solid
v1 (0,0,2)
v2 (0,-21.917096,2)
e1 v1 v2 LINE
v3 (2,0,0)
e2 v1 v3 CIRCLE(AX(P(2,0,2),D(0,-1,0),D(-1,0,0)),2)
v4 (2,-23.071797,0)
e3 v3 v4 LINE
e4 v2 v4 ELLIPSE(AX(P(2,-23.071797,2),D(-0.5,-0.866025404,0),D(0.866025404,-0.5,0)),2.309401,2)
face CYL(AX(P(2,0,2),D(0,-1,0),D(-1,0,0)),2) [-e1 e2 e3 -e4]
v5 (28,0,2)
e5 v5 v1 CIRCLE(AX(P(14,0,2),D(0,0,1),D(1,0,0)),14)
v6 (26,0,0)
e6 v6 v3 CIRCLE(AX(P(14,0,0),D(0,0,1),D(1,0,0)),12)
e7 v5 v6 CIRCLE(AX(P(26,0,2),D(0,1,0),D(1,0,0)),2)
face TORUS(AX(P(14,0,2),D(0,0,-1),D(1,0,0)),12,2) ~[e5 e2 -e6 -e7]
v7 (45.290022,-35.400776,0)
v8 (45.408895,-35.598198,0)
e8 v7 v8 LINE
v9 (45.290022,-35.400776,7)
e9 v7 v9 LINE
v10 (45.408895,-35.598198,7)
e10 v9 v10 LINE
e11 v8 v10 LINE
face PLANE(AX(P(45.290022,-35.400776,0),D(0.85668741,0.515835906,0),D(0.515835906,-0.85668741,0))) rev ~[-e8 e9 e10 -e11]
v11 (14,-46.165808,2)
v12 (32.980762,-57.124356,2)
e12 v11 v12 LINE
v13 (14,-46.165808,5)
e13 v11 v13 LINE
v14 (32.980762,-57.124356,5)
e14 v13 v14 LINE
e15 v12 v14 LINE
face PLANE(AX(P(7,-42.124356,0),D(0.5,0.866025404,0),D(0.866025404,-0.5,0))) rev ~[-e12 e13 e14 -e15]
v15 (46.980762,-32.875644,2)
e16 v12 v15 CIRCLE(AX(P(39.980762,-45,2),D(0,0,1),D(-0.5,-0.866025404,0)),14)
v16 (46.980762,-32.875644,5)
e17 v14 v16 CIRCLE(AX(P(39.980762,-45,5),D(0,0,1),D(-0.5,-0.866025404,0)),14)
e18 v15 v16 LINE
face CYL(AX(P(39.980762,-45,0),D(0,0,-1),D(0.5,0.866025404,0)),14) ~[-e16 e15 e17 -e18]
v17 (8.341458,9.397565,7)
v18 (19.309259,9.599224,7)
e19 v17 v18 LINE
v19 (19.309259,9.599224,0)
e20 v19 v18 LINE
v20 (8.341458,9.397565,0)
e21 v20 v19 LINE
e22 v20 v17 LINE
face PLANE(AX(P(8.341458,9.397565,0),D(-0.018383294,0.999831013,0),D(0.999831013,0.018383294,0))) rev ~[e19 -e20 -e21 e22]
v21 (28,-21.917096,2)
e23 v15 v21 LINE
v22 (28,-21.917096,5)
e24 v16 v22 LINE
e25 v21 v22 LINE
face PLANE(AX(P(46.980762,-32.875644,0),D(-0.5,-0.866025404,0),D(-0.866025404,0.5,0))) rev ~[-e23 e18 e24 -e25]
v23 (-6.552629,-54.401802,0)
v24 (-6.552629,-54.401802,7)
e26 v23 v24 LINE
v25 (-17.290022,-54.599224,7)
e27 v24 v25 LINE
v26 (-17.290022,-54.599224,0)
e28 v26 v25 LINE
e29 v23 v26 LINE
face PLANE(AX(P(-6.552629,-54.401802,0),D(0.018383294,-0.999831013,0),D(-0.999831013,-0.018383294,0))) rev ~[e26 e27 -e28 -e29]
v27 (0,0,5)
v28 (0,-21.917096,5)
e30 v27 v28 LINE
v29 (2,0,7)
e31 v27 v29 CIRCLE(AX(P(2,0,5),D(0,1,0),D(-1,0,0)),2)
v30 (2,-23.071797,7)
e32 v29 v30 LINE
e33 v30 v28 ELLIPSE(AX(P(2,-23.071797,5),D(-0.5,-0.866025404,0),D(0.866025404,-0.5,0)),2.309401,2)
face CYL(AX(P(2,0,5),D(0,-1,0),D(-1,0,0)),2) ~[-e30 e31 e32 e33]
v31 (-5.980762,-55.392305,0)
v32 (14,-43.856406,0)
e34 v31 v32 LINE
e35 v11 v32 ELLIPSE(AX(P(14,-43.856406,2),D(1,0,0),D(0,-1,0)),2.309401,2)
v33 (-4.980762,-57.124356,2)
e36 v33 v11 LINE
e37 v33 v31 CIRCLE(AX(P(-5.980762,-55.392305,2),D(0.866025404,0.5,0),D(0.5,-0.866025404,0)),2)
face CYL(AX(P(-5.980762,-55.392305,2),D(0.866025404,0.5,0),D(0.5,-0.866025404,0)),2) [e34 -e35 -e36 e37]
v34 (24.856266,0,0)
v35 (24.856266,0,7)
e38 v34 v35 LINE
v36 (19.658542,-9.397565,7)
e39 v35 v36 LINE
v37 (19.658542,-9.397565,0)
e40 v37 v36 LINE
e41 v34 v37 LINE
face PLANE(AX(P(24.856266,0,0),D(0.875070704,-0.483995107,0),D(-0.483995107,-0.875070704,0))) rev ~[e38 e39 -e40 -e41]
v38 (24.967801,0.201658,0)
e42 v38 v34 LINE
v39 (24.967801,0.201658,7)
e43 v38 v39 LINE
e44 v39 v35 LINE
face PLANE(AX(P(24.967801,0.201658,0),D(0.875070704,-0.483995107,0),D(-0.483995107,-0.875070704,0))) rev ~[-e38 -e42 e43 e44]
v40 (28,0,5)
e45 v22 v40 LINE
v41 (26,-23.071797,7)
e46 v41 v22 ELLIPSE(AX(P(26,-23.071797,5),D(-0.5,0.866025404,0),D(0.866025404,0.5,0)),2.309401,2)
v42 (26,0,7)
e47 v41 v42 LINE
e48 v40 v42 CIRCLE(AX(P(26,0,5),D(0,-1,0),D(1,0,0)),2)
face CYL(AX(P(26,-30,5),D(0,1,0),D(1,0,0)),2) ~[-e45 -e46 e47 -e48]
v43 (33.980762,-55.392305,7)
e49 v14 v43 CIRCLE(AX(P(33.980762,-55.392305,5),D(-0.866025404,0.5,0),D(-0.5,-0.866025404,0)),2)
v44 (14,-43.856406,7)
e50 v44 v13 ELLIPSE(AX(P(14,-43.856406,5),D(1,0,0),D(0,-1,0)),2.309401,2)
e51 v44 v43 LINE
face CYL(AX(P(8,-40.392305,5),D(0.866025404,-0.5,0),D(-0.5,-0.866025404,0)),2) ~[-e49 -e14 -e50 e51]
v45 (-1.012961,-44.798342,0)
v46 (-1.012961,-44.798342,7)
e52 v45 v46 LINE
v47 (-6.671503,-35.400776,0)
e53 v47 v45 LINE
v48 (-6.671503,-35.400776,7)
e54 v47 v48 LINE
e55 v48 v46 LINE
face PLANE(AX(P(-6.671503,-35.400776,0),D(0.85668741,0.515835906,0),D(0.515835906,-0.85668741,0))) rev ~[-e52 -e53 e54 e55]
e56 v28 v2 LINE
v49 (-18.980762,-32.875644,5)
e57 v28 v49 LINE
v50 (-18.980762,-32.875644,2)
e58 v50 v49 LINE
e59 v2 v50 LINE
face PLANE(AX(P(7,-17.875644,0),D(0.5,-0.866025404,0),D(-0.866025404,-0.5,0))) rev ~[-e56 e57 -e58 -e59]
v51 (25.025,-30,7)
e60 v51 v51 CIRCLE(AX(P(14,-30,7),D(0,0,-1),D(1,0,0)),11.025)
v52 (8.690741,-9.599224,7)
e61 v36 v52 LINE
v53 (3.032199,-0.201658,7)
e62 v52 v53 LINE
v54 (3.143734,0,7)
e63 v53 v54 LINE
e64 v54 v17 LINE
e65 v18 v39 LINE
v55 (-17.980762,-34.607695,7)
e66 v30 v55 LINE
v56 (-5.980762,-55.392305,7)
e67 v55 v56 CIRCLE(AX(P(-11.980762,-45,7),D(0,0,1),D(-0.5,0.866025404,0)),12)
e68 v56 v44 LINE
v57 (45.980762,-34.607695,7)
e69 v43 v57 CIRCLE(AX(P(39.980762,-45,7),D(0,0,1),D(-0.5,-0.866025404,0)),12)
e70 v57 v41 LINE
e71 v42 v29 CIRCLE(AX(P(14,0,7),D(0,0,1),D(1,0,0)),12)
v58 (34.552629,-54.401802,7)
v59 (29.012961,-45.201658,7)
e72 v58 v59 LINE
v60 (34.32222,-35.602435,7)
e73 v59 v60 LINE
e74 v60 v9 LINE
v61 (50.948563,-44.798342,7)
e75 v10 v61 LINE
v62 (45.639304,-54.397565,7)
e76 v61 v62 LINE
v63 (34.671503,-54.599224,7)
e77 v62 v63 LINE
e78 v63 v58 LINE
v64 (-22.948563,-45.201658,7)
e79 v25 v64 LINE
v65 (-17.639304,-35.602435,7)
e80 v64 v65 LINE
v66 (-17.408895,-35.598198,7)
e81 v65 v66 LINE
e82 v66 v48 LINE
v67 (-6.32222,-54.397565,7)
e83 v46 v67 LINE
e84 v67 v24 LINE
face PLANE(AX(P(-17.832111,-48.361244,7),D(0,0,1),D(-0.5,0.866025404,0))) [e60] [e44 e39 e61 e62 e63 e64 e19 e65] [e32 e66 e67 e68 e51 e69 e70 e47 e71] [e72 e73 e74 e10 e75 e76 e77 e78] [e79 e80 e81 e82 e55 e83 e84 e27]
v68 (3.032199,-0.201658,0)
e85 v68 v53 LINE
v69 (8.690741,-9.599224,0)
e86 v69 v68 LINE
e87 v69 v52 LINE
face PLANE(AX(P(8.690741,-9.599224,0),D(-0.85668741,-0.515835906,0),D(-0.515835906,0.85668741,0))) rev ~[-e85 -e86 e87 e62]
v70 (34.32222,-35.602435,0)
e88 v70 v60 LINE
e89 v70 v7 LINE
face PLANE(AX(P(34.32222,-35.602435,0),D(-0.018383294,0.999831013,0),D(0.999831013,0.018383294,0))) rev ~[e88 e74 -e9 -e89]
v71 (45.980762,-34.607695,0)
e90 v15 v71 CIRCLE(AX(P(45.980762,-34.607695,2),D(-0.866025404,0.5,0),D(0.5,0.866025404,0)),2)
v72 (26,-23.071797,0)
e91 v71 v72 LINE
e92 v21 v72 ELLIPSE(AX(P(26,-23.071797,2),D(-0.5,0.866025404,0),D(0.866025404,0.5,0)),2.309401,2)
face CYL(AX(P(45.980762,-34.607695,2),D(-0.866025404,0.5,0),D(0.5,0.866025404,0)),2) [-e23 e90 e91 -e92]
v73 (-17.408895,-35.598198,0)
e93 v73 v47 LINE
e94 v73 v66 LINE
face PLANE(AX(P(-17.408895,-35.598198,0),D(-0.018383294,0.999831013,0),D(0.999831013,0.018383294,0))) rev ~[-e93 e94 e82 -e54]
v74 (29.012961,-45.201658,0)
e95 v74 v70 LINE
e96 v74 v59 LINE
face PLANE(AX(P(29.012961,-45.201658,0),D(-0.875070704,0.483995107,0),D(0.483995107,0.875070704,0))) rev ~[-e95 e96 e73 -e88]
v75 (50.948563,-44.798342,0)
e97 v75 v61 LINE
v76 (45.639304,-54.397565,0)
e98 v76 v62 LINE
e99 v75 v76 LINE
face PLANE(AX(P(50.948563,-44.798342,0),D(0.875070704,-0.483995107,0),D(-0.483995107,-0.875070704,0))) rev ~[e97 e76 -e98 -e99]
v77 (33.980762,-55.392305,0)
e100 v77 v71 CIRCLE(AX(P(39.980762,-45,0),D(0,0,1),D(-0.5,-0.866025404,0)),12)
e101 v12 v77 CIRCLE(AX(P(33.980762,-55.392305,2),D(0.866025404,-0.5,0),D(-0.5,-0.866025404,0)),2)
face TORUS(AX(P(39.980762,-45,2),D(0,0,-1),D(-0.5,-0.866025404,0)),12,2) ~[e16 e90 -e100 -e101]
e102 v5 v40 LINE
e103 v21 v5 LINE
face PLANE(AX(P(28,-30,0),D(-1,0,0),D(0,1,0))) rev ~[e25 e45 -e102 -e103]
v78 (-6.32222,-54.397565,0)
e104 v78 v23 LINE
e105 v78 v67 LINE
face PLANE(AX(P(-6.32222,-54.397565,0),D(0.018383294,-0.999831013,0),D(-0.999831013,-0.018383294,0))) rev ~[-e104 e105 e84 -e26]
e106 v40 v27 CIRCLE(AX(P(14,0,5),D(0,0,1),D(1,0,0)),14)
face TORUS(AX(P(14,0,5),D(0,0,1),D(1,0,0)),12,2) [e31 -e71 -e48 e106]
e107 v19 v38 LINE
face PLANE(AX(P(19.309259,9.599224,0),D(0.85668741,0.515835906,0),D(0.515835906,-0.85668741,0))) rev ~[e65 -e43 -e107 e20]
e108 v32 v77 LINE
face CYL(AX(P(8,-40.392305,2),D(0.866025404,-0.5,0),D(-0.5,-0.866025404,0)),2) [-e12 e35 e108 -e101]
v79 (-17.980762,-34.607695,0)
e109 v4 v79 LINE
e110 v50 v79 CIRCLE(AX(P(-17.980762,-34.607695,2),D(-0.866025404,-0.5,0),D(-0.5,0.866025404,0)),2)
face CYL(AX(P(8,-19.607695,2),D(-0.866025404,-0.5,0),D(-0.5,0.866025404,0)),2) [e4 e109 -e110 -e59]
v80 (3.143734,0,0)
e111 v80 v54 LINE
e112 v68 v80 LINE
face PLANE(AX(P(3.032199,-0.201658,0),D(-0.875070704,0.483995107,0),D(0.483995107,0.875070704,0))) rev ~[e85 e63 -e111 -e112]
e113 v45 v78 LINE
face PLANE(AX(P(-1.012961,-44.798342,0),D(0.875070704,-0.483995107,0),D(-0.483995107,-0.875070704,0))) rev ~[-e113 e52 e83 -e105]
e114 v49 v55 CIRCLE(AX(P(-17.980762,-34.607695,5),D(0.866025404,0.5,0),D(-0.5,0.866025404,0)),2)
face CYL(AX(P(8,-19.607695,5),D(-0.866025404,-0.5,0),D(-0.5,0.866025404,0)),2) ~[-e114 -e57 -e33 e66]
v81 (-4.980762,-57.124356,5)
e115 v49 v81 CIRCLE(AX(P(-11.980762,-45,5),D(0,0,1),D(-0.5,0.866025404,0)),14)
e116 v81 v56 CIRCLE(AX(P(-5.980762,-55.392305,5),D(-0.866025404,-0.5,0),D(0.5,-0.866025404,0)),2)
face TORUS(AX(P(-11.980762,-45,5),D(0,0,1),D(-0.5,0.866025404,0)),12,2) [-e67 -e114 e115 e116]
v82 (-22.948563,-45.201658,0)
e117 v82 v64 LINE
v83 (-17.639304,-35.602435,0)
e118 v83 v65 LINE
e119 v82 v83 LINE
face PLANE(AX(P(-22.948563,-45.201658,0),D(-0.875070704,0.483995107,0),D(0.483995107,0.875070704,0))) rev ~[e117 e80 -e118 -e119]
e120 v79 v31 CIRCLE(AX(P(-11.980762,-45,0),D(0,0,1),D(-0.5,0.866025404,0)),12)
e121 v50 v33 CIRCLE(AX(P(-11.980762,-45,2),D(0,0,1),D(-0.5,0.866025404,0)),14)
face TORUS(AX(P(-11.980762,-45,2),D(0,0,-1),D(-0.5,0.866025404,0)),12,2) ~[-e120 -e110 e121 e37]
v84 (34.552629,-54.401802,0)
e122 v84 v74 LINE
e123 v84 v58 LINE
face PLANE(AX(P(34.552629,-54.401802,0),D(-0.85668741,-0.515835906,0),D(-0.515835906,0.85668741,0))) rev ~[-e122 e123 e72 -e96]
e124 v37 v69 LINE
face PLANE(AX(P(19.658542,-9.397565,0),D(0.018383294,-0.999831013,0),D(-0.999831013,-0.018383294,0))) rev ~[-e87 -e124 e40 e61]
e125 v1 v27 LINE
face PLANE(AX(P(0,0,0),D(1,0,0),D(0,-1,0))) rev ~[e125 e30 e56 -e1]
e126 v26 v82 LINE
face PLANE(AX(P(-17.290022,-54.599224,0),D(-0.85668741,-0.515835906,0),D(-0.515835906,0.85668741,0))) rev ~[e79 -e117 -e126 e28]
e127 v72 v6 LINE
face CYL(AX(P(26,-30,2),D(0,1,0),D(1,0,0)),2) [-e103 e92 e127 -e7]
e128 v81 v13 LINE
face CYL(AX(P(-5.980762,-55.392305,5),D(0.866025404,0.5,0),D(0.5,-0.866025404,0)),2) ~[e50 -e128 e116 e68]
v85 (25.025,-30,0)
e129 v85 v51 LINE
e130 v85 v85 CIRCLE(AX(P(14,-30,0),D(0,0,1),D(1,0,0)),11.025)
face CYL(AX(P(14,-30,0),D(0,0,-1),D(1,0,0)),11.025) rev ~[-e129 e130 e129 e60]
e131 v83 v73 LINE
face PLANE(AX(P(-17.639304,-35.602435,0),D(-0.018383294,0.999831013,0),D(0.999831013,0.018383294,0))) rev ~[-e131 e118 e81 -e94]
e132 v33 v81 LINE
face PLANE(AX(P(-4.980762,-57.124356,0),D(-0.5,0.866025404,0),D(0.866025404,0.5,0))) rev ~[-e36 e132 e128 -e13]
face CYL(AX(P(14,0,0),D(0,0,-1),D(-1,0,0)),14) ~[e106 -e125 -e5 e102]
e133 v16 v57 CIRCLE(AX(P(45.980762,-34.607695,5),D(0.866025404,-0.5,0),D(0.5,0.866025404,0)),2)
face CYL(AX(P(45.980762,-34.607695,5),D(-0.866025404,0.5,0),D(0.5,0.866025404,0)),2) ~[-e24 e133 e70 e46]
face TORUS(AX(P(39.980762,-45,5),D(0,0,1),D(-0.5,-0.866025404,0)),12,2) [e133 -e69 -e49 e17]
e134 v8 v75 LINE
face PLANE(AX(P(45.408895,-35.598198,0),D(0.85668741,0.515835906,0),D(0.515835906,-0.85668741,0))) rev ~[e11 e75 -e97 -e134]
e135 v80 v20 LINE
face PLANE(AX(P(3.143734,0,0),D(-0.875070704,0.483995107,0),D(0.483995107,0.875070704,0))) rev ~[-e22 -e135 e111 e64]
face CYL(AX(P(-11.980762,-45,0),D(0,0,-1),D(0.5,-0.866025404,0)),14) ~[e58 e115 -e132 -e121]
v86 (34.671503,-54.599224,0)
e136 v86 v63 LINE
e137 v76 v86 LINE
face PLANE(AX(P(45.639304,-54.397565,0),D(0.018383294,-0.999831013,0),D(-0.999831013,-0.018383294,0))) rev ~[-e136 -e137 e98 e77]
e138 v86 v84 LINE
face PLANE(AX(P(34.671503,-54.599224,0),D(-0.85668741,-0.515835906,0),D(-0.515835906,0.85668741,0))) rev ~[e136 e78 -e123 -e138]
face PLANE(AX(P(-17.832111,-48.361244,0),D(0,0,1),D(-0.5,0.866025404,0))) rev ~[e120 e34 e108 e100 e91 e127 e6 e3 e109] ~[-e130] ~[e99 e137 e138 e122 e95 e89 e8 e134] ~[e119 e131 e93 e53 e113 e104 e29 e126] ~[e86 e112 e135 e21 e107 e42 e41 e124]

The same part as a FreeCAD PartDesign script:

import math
import FreeCAD as App
import Part
import Sketcher
from FreeCAD import Vector
Q = App.Units.Quantity


def edges_at(feature, points):
    """Names of the edges that pass closest to the given points."""
    edges = feature.Shape.Edges
    near = lambda p: min(range(len(edges)), key=lambda i: edges[i].distToShape(Part.Vertex(*p))[0])
    return sorted({f"Edge{near(p) + 1}" for p in points})


def add_polygon(sketch, points):
    """Adds a closed chain of lines whose ends are joined by coincident constraints."""
    first, n = sketch.GeometryCount, len(points)
    for a, b in zip(points, points[1:] + points[:1]):
        sketch.addGeometry(Part.LineSegment(App.Vector(*a, 0), App.Vector(*b, 0)), False)
    for i in range(n):
        sketch.addConstraint(Sketcher.Constraint("Coincident", first + i, 2, first + (i + 1) % n, 1))

doc = App.newDocument("Part")
body = doc.addObject("PartDesign::Body", "Body")

# Sketch on XY plane
sketch1 = body.newObject("Sketcher::SketchObject", "Sketch")
sketch1.AttachmentSupport = (doc.getObject("XY_Plane"), [""])
sketch1.MapMode = "FlatFace"
sketch1.addGeometry(Part.ArcOfCircle(Part.Circle(Vector(14, 0, 0), Vector(0, 0, 1), 14), math.radians(0), math.radians(180)), False)  # 0
sketch1.addGeometry(Part.LineSegment(Vector(0, 0, 0), Vector(0, -30, 0)), False)  # 1
sketch1.addGeometry(Part.ArcOfCircle(Part.Circle(Vector(14, -30, 0), Vector(0, 0, 1), 14), math.radians(180), math.radians(360)), False)  # 2
sketch1.addGeometry(Part.LineSegment(Vector(28, -30, 0), Vector(28, 0, 0)), False)  # 3
add_polygon(sketch1, [(3.143734, 0), (8.341458, 9.397565), (19.309259, 9.599224), (24.967801, 0.201658), (24.856266, 0), (19.658542, -9.397565), (8.690741, -9.599224), (3.032199, -0.201658)])  # lines 4-11
sketch1.addGeometry(Part.Circle(Vector(14, -30, 0), Vector(0, 0, 1), 11.025), False)  # 12
sketch1.addConstraint([
    Sketcher.Constraint("Coincident", 0, 2, 1, 1),
    Sketcher.Constraint("Coincident", 1, 2, 2, 1),
    Sketcher.Constraint("Coincident", 2, 2, 3, 1),
    Sketcher.Constraint("Coincident", 3, 2, 0, 1),
    Sketcher.Constraint("Vertical", 1),
    Sketcher.Constraint("Vertical", 3),
    Sketcher.Constraint("Coincident", 0, 2, -1, 1),
    Sketcher.Constraint("Coincident", 12, 3, 2, 3),
    Sketcher.Constraint("PointOnObject", 0, 3, -1),
    Sketcher.Constraint("PointOnObject", 3, 2, -1),
    Sketcher.Constraint("PointOnObject", 7, 2, -1),
    Sketcher.Constraint("PointOnObject", 11, 2, -1),
    Sketcher.Constraint("Radius", 0, Q("14 mm")),
    Sketcher.Constraint("Diameter", 12, Q("22.05 mm")),
    Sketcher.Constraint("DistanceY", 1, 2, 1, 1, Q("30 mm")),
    Sketcher.Constraint("DistanceY", 3, 1, 3, 2, Q("30 mm")),
    Sketcher.Constraint("DistanceY", 2, 3, -1, 1, Q("30 mm")),
    Sketcher.Constraint("DistanceX", -1, 1, 6, 2, Q("24.967801 mm")),
    Sketcher.Constraint("DistanceX", -1, 1, 10, 2, Q("3.032199 mm")),
    Sketcher.Constraint("DistanceX", 4, 2, 5, 2, Q("10.967801 mm")),
    Sketcher.Constraint("DistanceX", 9, 2, 8, 2, Q("10.967801 mm")),
    Sketcher.Constraint("Distance", 7, Q("0.230448 mm")),
    Sketcher.Constraint("Distance", 11, Q("0.230448 mm")),
    Sketcher.Constraint("DistanceX", -1, 1, 4, 2, Q("8.341458 mm")),
    Sketcher.Constraint("DistanceY", -1, 1, 6, 2, Q("0.201658 mm")),
    Sketcher.Constraint("DistanceX", -1, 1, 8, 2, Q("19.658542 mm")),
    Sketcher.Constraint("DistanceY", 10, 2, -1, 1, Q("0.201658 mm")),
    Sketcher.Constraint("DistanceY", 4, 2, 5, 2, Q("0.201658 mm")),
    Sketcher.Constraint("DistanceY", 8, 2, 5, 2, Q("18.996789 mm")),
    Sketcher.Constraint("DistanceY", 9, 2, 8, 2, Q("0.201658 mm")),
    Sketcher.Constraint("Distance", 4, Q("10.739207 mm")),
])
pad1 = body.newObject("PartDesign::Pad", "Pad")
pad1.Profile = sketch1
pad1.Length = 7
doc.recompute()

fillet = body.newObject("PartDesign::Fillet", "Fillet")
fillet.Base = (pad1, edges_at(pad1, [
    (28, -15, 7),
    (14, 14, 7),
    (0, -15, 0),
    (14, -44, 0),
    (0, -15, 7),
    (14, -44, 7),
    (14, 14, 0),
    (28, -15, 0),
]))
fillet.Radius = 2
body2 = doc.addObject("PartDesign::Body", "Body001")
doc.recompute()

body2.BaseFeature = body
doc.recompute()

body3 = doc.addObject("PartDesign::Body", "Body002")
body3.BaseFeature = body
body3.Placement = App.Placement(Vector(46.980762, -32.875644, 0), App.Rotation(Vector(0, 0, -1), 120))
boolean = body2.newObject("PartDesign::Boolean", "Boolean")
boolean.Type = "Fuse"
boolean.addObjects([body3])
doc.recompute()

body.Placement = App.Placement(Vector(-4.980762, -57.124356, 0), App.Rotation(Vector(0, 0, -1), 240))
boolean2 = body2.newObject("PartDesign::Boolean", "Boolean001")
boolean2.Type = "Fuse"
boolean2.addObjects([body])

doc.recompute()
